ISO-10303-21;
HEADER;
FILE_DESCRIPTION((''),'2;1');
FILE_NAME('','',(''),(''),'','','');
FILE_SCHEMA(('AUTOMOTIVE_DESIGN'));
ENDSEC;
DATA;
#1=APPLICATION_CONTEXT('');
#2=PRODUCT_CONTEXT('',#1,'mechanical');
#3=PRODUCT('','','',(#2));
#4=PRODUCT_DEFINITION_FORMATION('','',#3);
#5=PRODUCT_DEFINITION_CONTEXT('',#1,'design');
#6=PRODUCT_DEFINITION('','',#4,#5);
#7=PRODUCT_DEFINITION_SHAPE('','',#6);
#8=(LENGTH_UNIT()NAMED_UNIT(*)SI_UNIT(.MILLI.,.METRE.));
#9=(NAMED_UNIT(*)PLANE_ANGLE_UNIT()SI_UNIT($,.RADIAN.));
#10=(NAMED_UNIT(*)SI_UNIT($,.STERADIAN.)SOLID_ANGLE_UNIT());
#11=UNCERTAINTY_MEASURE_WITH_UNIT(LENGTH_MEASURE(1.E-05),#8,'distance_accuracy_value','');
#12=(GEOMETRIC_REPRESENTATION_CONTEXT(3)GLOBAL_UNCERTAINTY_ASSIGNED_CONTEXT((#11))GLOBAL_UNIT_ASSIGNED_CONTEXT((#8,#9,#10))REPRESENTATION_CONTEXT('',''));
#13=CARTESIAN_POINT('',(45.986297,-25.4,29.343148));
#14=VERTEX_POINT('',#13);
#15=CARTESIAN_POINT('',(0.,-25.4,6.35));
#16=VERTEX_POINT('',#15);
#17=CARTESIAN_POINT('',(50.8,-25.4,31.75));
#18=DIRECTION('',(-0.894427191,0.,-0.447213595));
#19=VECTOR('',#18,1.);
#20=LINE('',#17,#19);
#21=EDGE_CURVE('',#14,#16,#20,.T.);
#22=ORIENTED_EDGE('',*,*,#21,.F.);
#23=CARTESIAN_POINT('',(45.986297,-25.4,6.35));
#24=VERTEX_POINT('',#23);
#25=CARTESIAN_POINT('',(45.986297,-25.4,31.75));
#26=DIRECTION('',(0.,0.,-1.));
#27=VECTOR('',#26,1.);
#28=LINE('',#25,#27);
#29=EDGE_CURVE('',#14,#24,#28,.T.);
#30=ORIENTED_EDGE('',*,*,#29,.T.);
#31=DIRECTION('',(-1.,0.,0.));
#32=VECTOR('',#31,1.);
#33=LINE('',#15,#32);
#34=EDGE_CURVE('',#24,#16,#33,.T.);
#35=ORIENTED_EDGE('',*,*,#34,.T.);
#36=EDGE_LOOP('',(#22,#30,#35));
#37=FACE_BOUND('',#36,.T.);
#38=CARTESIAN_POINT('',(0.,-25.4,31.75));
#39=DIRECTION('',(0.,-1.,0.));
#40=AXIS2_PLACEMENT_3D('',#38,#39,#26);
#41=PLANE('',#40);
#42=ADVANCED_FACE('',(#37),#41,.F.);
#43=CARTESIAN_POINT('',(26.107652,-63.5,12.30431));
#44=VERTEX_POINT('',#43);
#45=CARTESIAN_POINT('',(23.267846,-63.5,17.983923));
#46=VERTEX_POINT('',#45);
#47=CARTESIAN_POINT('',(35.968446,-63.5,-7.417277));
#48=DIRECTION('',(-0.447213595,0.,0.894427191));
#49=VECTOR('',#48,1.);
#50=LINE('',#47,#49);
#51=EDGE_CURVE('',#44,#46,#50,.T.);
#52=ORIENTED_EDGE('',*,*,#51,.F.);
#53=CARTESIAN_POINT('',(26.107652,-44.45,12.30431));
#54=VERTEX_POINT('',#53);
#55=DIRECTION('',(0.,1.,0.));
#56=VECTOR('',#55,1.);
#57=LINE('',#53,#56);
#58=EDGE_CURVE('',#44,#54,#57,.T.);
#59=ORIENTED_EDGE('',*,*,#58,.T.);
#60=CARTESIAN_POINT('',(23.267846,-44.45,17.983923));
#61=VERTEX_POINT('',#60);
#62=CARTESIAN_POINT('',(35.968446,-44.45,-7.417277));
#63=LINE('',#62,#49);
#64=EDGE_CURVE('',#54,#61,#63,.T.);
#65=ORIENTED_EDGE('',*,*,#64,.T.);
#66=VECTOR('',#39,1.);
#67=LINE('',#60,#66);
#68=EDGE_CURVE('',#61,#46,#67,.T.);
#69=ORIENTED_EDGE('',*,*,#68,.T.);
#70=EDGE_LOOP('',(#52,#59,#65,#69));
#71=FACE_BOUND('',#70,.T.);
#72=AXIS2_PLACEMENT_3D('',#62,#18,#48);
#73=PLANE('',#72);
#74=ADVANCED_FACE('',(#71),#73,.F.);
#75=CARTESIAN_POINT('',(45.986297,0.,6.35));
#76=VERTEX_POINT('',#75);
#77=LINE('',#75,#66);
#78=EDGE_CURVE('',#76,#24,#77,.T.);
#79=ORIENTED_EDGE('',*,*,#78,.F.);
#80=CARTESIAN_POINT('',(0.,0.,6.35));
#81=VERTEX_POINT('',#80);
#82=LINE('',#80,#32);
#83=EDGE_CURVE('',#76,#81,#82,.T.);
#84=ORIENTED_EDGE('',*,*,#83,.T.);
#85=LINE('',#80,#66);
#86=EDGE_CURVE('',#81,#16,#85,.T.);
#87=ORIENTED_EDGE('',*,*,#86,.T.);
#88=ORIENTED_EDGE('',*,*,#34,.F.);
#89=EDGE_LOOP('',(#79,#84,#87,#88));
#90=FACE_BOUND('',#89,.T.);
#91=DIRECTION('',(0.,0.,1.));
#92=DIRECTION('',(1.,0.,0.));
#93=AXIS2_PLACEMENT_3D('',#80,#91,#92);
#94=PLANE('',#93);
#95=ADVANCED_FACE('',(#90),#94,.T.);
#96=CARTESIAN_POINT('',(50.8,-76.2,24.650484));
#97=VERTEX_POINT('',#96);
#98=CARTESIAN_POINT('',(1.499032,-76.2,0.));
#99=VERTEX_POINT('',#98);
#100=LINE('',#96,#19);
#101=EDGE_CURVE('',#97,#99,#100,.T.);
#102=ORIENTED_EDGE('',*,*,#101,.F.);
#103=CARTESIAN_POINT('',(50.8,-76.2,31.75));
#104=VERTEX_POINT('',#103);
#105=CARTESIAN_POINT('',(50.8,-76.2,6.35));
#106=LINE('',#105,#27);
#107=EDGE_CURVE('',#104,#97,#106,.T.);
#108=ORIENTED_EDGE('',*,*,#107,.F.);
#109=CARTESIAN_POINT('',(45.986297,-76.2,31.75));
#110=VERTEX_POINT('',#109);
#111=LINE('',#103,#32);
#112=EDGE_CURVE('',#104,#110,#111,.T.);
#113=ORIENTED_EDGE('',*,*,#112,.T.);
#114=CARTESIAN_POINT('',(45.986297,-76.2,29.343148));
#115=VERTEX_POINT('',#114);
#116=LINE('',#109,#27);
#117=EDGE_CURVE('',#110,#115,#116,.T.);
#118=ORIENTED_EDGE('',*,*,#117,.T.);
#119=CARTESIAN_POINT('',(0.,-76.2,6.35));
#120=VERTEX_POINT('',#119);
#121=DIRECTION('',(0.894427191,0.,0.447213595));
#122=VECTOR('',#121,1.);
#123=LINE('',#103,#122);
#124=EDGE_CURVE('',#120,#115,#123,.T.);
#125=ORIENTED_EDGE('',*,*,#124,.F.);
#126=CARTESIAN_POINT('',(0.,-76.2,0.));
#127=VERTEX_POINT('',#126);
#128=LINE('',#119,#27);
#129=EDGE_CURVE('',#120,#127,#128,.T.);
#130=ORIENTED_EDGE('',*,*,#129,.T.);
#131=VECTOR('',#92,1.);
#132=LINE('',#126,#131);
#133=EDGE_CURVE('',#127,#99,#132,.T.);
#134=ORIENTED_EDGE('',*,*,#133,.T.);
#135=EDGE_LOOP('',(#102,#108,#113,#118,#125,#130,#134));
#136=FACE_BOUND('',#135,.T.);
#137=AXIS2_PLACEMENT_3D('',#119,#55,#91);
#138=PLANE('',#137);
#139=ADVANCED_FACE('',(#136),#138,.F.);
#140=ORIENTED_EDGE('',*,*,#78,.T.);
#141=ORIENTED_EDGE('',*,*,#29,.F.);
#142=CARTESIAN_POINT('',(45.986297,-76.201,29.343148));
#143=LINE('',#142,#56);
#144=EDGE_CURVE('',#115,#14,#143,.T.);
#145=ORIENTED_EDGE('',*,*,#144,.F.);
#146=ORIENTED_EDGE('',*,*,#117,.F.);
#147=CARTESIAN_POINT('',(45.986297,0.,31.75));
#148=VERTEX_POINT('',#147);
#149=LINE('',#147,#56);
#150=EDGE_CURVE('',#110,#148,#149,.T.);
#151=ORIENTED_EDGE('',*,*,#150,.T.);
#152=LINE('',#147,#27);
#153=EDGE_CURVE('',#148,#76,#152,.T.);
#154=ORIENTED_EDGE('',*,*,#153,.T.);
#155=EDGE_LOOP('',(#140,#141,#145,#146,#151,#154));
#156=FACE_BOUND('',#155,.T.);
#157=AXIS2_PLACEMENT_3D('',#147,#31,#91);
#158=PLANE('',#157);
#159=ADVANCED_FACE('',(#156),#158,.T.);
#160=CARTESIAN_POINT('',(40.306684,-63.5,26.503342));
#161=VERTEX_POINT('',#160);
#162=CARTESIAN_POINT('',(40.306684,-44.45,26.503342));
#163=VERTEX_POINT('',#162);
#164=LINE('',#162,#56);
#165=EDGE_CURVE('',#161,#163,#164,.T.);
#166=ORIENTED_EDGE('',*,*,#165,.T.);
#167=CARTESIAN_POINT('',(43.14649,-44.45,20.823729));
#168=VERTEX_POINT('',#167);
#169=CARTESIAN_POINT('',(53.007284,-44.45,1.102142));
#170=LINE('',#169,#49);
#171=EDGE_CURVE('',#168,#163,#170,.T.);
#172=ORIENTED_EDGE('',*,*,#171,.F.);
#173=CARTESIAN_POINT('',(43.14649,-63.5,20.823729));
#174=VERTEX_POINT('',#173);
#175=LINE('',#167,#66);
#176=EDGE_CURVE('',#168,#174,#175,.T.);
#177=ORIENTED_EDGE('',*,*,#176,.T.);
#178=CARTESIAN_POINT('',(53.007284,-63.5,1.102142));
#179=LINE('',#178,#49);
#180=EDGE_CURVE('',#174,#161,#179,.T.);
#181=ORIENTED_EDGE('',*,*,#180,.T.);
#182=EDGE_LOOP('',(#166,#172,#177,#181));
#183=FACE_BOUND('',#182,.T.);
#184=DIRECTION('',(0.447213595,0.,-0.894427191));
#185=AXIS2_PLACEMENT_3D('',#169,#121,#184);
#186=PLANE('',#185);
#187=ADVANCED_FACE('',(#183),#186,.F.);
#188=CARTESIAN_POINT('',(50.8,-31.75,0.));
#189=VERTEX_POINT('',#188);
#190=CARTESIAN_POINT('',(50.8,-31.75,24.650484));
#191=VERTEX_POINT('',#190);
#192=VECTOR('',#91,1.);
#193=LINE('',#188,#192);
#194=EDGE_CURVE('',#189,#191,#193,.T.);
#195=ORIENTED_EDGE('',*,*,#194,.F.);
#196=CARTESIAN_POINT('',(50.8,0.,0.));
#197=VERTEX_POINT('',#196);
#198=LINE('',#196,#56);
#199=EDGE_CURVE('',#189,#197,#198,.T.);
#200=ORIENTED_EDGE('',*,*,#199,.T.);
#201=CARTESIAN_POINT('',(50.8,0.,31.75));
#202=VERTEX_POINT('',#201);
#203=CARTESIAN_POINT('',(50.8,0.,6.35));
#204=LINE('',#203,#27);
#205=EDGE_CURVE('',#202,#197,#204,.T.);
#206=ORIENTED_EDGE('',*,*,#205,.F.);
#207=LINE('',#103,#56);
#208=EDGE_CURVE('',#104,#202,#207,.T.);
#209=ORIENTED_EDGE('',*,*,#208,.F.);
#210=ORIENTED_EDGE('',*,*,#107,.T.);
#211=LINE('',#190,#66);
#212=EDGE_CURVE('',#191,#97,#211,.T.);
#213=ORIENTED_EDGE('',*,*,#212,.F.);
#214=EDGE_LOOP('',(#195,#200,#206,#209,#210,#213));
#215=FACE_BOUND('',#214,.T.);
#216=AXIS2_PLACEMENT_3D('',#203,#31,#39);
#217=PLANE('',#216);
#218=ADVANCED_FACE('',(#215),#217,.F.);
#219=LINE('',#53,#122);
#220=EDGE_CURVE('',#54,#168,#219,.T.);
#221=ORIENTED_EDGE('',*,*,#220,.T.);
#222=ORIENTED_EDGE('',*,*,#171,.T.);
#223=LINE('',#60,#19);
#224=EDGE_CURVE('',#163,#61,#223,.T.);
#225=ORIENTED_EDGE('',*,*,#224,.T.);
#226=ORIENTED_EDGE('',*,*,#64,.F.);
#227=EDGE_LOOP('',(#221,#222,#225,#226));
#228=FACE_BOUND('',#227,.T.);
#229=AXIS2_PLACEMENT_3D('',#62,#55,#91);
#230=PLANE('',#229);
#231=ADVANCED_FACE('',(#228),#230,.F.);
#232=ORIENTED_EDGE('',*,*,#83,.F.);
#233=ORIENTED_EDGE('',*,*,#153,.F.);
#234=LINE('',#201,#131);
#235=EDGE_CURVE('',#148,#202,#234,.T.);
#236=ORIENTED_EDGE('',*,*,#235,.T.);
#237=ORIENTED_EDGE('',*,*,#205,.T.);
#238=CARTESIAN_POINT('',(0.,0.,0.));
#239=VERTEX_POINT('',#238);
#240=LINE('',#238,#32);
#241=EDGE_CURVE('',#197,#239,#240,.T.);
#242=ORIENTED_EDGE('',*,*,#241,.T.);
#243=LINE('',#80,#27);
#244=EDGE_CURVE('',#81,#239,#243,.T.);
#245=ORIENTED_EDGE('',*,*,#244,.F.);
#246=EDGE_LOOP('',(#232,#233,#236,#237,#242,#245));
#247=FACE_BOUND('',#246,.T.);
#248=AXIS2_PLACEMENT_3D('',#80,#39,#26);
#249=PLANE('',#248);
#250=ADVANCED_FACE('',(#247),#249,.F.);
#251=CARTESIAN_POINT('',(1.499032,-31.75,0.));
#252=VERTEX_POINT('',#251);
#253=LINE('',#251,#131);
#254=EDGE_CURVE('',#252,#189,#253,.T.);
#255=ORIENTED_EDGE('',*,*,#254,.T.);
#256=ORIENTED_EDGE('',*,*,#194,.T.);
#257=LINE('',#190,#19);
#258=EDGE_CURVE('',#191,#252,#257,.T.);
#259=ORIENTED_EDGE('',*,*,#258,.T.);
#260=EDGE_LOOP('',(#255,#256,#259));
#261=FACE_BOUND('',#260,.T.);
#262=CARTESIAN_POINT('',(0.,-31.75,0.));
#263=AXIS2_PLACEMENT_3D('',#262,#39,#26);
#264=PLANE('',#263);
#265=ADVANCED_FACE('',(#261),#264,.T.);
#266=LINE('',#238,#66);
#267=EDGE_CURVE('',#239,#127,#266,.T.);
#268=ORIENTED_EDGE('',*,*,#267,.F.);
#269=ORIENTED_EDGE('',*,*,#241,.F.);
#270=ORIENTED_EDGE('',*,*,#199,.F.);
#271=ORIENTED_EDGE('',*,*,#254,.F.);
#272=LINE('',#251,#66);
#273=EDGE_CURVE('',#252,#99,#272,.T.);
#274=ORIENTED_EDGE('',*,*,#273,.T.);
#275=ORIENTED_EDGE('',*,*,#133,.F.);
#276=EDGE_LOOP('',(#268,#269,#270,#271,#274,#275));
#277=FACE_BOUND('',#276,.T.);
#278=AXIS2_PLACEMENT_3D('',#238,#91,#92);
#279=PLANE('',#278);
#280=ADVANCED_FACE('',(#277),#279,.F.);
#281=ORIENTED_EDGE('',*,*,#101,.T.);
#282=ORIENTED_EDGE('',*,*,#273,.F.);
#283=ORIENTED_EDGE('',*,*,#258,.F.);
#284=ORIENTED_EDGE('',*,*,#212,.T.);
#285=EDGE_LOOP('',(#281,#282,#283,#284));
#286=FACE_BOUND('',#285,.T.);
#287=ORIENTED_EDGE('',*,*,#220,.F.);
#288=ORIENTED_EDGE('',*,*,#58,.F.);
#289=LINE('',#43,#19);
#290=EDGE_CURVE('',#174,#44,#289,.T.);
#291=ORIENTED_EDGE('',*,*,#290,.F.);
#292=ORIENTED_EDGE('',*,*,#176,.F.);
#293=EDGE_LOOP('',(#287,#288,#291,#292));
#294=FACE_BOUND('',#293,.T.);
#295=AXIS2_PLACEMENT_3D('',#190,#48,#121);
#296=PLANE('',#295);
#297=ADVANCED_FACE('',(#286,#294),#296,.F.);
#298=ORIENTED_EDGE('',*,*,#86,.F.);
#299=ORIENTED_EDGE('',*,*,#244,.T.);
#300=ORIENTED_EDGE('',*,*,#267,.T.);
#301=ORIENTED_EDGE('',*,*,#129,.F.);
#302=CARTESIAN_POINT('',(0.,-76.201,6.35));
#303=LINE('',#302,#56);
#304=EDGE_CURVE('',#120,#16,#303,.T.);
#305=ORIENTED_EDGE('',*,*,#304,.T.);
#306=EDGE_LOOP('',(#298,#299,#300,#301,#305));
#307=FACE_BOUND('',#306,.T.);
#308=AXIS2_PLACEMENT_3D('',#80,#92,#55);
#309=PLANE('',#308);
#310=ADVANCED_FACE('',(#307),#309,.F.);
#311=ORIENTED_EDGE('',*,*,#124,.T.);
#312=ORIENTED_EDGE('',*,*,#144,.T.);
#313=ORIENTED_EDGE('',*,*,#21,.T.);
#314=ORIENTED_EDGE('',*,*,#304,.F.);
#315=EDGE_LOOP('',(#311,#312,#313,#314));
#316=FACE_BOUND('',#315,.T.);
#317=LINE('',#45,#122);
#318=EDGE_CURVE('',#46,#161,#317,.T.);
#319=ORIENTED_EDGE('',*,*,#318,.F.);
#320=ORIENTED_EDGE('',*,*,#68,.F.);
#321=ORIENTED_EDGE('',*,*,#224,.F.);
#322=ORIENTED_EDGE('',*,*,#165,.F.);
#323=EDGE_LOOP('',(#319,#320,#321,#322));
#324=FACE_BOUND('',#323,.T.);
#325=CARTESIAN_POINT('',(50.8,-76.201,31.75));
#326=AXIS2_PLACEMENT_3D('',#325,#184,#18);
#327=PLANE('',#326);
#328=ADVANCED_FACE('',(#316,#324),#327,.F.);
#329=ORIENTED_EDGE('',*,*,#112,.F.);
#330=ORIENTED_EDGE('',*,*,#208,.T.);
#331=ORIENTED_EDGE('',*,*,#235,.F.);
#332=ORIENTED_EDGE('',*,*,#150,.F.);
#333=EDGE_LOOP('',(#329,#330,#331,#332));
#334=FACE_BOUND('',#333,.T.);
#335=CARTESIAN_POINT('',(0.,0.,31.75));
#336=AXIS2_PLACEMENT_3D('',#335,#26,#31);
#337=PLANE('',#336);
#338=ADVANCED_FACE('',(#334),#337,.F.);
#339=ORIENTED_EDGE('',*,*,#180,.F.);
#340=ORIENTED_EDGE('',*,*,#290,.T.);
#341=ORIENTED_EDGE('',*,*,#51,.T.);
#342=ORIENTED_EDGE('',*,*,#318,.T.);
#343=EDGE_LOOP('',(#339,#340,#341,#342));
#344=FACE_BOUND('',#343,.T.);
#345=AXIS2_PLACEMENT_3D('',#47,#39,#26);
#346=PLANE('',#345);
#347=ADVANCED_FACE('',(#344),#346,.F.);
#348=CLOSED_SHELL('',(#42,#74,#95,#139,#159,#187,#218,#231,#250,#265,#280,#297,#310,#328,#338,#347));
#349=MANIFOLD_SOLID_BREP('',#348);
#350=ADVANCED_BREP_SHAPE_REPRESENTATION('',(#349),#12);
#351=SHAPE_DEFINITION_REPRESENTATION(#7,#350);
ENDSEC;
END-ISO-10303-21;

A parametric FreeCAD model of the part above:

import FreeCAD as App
import Part
import Sketcher
from FreeCAD import Vector
Q = App.Units.Quantity

doc = App.newDocument("Part")
params = doc.addObject("Spreadsheet::Sheet", "Params")
for row, (alias, value) in enumerate([
    ("sketch1_width", "2 in"),
    ("sketch1_height", "3 in"),
    ("pad1_length", "0.25 in"),
    ("sketch2_width", "2 in"),
    ("pad2_length", "1 in"),
    ("sketch3_width", "2 in"),
    ("sketch3_height", "1 in"),
    ("sketch4_height", "3 in"),
    ("pad3_length", "1.25 in"),
    ("pocket2_length", "1.75 in"),
    ("sketch6_width", "0.75 in"),
], start=1):
    params.set(f"A{row}", alias)
    params.set(f"B{row}", "=" + value)
    params.setAlias(f"B{row}", alias)

body = doc.addObject("PartDesign::Body", "Body")

sketch1 = body.newObject("Sketcher::SketchObject", "Sketch")
sketch1.AttachmentSupport = (doc.getObject("XY_Plane"), [""])
sketch1.MapMode = "FlatFace"
sketch1.addGeometry([
    Part.LineSegment(Vector(0, 0, 0), Vector(0, -76.2, 0)),
    Part.LineSegment(Vector(0, -76.2, 0), Vector(50.8, -76.2, 0)),
    Part.LineSegment(Vector(50.8, -76.2, 0), Vector(50.8, 0, 0)),
    Part.LineSegment(Vector(50.8, 0, 0), Vector(0, 0, 0)),
], False)
sketch1.addConstraint([
    Sketcher.Constraint("Coincident", 0, 2, 1, 1),
    Sketcher.Constraint("Coincident", 1, 2, 2, 1),
    Sketcher.Constraint("Coincident", 2, 2, 3, 1),
    Sketcher.Constraint("Coincident", 3, 2, 0, 1),
    Sketcher.Constraint("Vertical", 0),
    Sketcher.Constraint("Horizontal", 1),
    Sketcher.Constraint("Vertical", 2),
    Sketcher.Constraint("Horizontal", 3),
    Sketcher.Constraint("Coincident", 3, 2, -1, 1),
    Sketcher.Constraint("DistanceX", 1, 1, 1, 2, Q("2 in")),
    Sketcher.Constraint("DistanceY", 0, 2, 0, 1, Q("3 in")),
])
sketch1.setExpression("Constraints[9]", "Params.sketch1_width")
sketch1.setExpression("Constraints[10]", "Params.sketch1_height")
pad1 = body.newObject("PartDesign::Pad", "Pad")
pad1.Profile = sketch1
pad1.setExpression("Length", "Params.pad1_length")

sketch2 = body.newObject("Sketcher::SketchObject", "Sketch001")
sketch2.AttachmentSupport = (doc.getObject("XY_Plane"), [""])
sketch2.MapMode = "FlatFace"
sketch2.AttachmentOffset = App.Placement(Vector(0, 0, 0.25 * 25.4), App.Rotation())
sketch2.addGeometry([
    Part.LineSegment(Vector(0, -25.4, 0), Vector(0, -76.2, 0)),
    Part.LineSegment(Vector(0, -76.2, 0), Vector(50.8, -76.2, 0)),
    Part.LineSegment(Vector(50.8, -76.2, 0), Vector(50.8, -25.4, 0)),
    Part.LineSegment(Vector(50.8, -25.4, 0), Vector(0, -25.4, 0)),
], False)
sketch2.addConstraint([
    Sketcher.Constraint("Coincident", 0, 2, 1, 1),
    Sketcher.Constraint("Coincident", 1, 2, 2, 1),
    Sketcher.Constraint("Coincident", 2, 2, 3, 1),
    Sketcher.Constraint("Coincident", 3, 2, 0, 1),
    Sketcher.Constraint("Vertical", 0),
    Sketcher.Constraint("Horizontal", 1),
    Sketcher.Constraint("Vertical", 2),
    Sketcher.Constraint("Horizontal", 3),
    Sketcher.Constraint("PointOnObject", 0, 2, -2),
    Sketcher.Constraint("Equal", 3, 0),
    Sketcher.Constraint("DistanceX", 1, 1, 1, 2, Q("2 in")),
    Sketcher.Constraint("DistanceY", 0, 2, -1, 1, Q("3 in")),
])
sketch2.setExpression("Constraints[10]", "Params.sketch2_width")
pad2 = body.newObject("PartDesign::Pad", "Pad001")
pad2.Profile = sketch2
pad2.setExpression("Length", "Params.pad2_length")

sketch3 = body.newObject("Sketcher::SketchObject", "Sketch002")
sketch3.AttachmentSupport = (doc.getObject("XZ_Plane"), [""])
sketch3.MapMode = "FlatFace"
sketch3.AttachmentOffset = App.Placement(Vector(0, 0, 1 * 25.4), App.Rotation())
sketch3.addGeometry([
    Part.LineSegment(Vector(0, 6.35, 0), Vector(0, 31.75, 0)),
    Part.LineSegment(Vector(0, 31.75, 0), Vector(50.8, 31.75, 0)),
    Part.LineSegment(Vector(50.8, 31.75, 0), Vector(0, 6.35, 0)),
], False)
sketch3.addConstraint([
    Sketcher.Constraint("Coincident", 0, 2, 1, 1),
    Sketcher.Constraint("Coincident", 1, 2, 2, 1),
    Sketcher.Constraint("Coincident", 2, 2, 0, 1),
    Sketcher.Constraint("Vertical", 0),
    Sketcher.Constraint("Horizontal", 1),
    Sketcher.Constraint("PointOnObject", 0, 2, -2),
    Sketcher.Constraint("DistanceX", 1, 1, 1, 2, Q("2 in")),
    Sketcher.Constraint("DistanceY", 0, 1, 0, 2, Q("1 in")),
    Sketcher.Constraint("DistanceY", -1, 1, 0, 2, Q("1.25 in")),
])
sketch3.setExpression("Constraints[6]", "Params.sketch3_width")
sketch3.setExpression("Constraints[7]", "Params.sketch3_height")
pocket1 = body.newObject("PartDesign::Pocket", "Pocket")
pocket1.Profile = sketch3
pocket1.Type = "UpToFirst"
pocket1.Reversed = True

sketch4 = body.newObject("Sketcher::SketchObject", "Sketch003")
sketch4.AttachmentSupport = (doc.getObject("XY_Plane"), [""])
sketch4.MapMode = "FlatFace"
sketch4.addGeometry([
    Part.LineSegment(Vector(50.8, 0, 0), Vector(50.8, -76.2, 0)),
    Part.LineSegment(Vector(50.8, -76.2, 0), Vector(45.986297, -76.2, 0)),
    Part.LineSegment(Vector(45.986297, -76.2, 0), Vector(45.986297, 0, 0)),
    Part.LineSegment(Vector(45.986297, 0, 0), Vector(50.8, 0, 0)),
], False)
sketch4.addConstraint([
    Sketcher.Constraint("Coincident", 0, 2, 1, 1),
    Sketcher.Constraint("Coincident", 1, 2, 2, 1),
    Sketcher.Constraint("Coincident", 2, 2, 3, 1),
    Sketcher.Constraint("Coincident", 3, 2, 0, 1),
    Sketcher.Constraint("Vertical", 0),
    Sketcher.Constraint("Horizontal", 1),
    Sketcher.Constraint("Vertical", 2),
    Sketcher.Constraint("Horizontal", 3),
    Sketcher.Constraint("PointOnObject", 2, 2, -1),
    Sketcher.Constraint("DistanceY", 0, 2, 0, 1, Q("3 in")),
    Sketcher.Constraint("DistanceX", -1, 1, 0, 2, Q("2 in")),
    Sketcher.Constraint("DistanceX", 1, 2, 1, 1, Q("4.813703 mm")),
])
sketch4.setExpression("Constraints[9]", "Params.sketch4_height")
pad3 = body.newObject("PartDesign::Pad", "Pad002")
pad3.Profile = sketch4
pad3.setExpression("Length", "Params.pad3_length")

sketch5 = body.newObject("Sketcher::SketchObject", "Sketch004")
sketch5.AttachmentSupport = (doc.getObject("XZ_Plane"), [""])
sketch5.MapMode = "FlatFace"
sketch5.AttachmentOffset = App.Placement(Vector(0, 0, 3 * 25.4), App.Rotation())
sketch5.addGeometry([
    Part.LineSegment(Vector(50.8, 0, 0), Vector(50.8, 24.650484, 0)),
    Part.LineSegment(Vector(50.8, 24.650484, 0), Vector(1.499032, 0, 0)),
    Part.LineSegment(Vector(1.499032, 0, 0), Vector(50.8, 0, 0)),
], False)
sketch5.addConstraint([
    Sketcher.Constraint("Coincident", 0, 2, 1, 1),
    Sketcher.Constraint("Coincident", 1, 2, 2, 1),
    Sketcher.Constraint("Coincident", 2, 2, 0, 1),
    Sketcher.Constraint("Vertical", 0),
    Sketcher.Constraint("Horizontal", 2),
    Sketcher.Constraint("PointOnObject", 1, 2, -1),
    Sketcher.Constraint("DistanceX", -1, 1, 0, 2, Q("2 in")),
    Sketcher.Constraint("DistanceX", 2, 1, 2, 2, Q("49.300968 mm")),
    Sketcher.Constraint("Distance", 1, Q("55.120158 mm")),
])
pocket2 = body.newObject("PartDesign::Pocket", "Pocket001")
pocket2.Profile = sketch5
pocket2.setExpression("Length", "Params.pocket2_length")

sketch6 = body.newObject("Sketcher::SketchObject", "Sketch005")
sketch6.Placement = App.Placement(Vector(-2.54, 0, 5.08), App.Rotation(Vector(0.894427191, 0, 0.447213595), Vector(0, 1, 0), Vector(-0.447213595, 0, 0.894427191), "ZXY"))
sketch6.addGeometry([
    Part.LineSegment(Vector(28.854049, -44.45, 0), Vector(28.854049, -63.5, 0)),
    Part.LineSegment(Vector(28.854049, -63.5, 0), Vector(47.904049, -63.5, 0)),
    Part.LineSegment(Vector(47.904049, -63.5, 0), Vector(47.904049, -44.45, 0)),
    Part.LineSegment(Vector(47.904049, -44.45, 0), Vector(28.854049, -44.45, 0)),
], False)
sketch6.addConstraint([
    Sketcher.Constraint("Coincident", 0, 2, 1, 1),
    Sketcher.Constraint("Coincident", 1, 2, 2, 1),
    Sketcher.Constraint("Coincident", 2, 2, 3, 1),
    Sketcher.Constraint("Coincident", 3, 2, 0, 1),
    Sketcher.Constraint("Vertical", 0),
    Sketcher.Constraint("Horizontal", 1),
    Sketcher.Constraint("Vertical", 2),
    Sketcher.Constraint("Horizontal", 3),
    Sketcher.Constraint("Equal", 3, 0),
    Sketcher.Constraint("DistanceX", 1, 1, 1, 2, Q("0.75 in")),
    Sketcher.Constraint("DistanceY", 0, 2, -1, 1, Q("2.5 in")),
    Sketcher.Constraint("DistanceX", -1, 1, 0, 2, Q("28.854049 mm")),
])
sketch6.setExpression("Constraints[9]", "Params.sketch6_width")
pocket3 = body.newObject("PartDesign::Pocket", "Pocket002")
pocket3.Profile = sketch6
pocket3.Type = "UpToFirst"

doc.recompute()
